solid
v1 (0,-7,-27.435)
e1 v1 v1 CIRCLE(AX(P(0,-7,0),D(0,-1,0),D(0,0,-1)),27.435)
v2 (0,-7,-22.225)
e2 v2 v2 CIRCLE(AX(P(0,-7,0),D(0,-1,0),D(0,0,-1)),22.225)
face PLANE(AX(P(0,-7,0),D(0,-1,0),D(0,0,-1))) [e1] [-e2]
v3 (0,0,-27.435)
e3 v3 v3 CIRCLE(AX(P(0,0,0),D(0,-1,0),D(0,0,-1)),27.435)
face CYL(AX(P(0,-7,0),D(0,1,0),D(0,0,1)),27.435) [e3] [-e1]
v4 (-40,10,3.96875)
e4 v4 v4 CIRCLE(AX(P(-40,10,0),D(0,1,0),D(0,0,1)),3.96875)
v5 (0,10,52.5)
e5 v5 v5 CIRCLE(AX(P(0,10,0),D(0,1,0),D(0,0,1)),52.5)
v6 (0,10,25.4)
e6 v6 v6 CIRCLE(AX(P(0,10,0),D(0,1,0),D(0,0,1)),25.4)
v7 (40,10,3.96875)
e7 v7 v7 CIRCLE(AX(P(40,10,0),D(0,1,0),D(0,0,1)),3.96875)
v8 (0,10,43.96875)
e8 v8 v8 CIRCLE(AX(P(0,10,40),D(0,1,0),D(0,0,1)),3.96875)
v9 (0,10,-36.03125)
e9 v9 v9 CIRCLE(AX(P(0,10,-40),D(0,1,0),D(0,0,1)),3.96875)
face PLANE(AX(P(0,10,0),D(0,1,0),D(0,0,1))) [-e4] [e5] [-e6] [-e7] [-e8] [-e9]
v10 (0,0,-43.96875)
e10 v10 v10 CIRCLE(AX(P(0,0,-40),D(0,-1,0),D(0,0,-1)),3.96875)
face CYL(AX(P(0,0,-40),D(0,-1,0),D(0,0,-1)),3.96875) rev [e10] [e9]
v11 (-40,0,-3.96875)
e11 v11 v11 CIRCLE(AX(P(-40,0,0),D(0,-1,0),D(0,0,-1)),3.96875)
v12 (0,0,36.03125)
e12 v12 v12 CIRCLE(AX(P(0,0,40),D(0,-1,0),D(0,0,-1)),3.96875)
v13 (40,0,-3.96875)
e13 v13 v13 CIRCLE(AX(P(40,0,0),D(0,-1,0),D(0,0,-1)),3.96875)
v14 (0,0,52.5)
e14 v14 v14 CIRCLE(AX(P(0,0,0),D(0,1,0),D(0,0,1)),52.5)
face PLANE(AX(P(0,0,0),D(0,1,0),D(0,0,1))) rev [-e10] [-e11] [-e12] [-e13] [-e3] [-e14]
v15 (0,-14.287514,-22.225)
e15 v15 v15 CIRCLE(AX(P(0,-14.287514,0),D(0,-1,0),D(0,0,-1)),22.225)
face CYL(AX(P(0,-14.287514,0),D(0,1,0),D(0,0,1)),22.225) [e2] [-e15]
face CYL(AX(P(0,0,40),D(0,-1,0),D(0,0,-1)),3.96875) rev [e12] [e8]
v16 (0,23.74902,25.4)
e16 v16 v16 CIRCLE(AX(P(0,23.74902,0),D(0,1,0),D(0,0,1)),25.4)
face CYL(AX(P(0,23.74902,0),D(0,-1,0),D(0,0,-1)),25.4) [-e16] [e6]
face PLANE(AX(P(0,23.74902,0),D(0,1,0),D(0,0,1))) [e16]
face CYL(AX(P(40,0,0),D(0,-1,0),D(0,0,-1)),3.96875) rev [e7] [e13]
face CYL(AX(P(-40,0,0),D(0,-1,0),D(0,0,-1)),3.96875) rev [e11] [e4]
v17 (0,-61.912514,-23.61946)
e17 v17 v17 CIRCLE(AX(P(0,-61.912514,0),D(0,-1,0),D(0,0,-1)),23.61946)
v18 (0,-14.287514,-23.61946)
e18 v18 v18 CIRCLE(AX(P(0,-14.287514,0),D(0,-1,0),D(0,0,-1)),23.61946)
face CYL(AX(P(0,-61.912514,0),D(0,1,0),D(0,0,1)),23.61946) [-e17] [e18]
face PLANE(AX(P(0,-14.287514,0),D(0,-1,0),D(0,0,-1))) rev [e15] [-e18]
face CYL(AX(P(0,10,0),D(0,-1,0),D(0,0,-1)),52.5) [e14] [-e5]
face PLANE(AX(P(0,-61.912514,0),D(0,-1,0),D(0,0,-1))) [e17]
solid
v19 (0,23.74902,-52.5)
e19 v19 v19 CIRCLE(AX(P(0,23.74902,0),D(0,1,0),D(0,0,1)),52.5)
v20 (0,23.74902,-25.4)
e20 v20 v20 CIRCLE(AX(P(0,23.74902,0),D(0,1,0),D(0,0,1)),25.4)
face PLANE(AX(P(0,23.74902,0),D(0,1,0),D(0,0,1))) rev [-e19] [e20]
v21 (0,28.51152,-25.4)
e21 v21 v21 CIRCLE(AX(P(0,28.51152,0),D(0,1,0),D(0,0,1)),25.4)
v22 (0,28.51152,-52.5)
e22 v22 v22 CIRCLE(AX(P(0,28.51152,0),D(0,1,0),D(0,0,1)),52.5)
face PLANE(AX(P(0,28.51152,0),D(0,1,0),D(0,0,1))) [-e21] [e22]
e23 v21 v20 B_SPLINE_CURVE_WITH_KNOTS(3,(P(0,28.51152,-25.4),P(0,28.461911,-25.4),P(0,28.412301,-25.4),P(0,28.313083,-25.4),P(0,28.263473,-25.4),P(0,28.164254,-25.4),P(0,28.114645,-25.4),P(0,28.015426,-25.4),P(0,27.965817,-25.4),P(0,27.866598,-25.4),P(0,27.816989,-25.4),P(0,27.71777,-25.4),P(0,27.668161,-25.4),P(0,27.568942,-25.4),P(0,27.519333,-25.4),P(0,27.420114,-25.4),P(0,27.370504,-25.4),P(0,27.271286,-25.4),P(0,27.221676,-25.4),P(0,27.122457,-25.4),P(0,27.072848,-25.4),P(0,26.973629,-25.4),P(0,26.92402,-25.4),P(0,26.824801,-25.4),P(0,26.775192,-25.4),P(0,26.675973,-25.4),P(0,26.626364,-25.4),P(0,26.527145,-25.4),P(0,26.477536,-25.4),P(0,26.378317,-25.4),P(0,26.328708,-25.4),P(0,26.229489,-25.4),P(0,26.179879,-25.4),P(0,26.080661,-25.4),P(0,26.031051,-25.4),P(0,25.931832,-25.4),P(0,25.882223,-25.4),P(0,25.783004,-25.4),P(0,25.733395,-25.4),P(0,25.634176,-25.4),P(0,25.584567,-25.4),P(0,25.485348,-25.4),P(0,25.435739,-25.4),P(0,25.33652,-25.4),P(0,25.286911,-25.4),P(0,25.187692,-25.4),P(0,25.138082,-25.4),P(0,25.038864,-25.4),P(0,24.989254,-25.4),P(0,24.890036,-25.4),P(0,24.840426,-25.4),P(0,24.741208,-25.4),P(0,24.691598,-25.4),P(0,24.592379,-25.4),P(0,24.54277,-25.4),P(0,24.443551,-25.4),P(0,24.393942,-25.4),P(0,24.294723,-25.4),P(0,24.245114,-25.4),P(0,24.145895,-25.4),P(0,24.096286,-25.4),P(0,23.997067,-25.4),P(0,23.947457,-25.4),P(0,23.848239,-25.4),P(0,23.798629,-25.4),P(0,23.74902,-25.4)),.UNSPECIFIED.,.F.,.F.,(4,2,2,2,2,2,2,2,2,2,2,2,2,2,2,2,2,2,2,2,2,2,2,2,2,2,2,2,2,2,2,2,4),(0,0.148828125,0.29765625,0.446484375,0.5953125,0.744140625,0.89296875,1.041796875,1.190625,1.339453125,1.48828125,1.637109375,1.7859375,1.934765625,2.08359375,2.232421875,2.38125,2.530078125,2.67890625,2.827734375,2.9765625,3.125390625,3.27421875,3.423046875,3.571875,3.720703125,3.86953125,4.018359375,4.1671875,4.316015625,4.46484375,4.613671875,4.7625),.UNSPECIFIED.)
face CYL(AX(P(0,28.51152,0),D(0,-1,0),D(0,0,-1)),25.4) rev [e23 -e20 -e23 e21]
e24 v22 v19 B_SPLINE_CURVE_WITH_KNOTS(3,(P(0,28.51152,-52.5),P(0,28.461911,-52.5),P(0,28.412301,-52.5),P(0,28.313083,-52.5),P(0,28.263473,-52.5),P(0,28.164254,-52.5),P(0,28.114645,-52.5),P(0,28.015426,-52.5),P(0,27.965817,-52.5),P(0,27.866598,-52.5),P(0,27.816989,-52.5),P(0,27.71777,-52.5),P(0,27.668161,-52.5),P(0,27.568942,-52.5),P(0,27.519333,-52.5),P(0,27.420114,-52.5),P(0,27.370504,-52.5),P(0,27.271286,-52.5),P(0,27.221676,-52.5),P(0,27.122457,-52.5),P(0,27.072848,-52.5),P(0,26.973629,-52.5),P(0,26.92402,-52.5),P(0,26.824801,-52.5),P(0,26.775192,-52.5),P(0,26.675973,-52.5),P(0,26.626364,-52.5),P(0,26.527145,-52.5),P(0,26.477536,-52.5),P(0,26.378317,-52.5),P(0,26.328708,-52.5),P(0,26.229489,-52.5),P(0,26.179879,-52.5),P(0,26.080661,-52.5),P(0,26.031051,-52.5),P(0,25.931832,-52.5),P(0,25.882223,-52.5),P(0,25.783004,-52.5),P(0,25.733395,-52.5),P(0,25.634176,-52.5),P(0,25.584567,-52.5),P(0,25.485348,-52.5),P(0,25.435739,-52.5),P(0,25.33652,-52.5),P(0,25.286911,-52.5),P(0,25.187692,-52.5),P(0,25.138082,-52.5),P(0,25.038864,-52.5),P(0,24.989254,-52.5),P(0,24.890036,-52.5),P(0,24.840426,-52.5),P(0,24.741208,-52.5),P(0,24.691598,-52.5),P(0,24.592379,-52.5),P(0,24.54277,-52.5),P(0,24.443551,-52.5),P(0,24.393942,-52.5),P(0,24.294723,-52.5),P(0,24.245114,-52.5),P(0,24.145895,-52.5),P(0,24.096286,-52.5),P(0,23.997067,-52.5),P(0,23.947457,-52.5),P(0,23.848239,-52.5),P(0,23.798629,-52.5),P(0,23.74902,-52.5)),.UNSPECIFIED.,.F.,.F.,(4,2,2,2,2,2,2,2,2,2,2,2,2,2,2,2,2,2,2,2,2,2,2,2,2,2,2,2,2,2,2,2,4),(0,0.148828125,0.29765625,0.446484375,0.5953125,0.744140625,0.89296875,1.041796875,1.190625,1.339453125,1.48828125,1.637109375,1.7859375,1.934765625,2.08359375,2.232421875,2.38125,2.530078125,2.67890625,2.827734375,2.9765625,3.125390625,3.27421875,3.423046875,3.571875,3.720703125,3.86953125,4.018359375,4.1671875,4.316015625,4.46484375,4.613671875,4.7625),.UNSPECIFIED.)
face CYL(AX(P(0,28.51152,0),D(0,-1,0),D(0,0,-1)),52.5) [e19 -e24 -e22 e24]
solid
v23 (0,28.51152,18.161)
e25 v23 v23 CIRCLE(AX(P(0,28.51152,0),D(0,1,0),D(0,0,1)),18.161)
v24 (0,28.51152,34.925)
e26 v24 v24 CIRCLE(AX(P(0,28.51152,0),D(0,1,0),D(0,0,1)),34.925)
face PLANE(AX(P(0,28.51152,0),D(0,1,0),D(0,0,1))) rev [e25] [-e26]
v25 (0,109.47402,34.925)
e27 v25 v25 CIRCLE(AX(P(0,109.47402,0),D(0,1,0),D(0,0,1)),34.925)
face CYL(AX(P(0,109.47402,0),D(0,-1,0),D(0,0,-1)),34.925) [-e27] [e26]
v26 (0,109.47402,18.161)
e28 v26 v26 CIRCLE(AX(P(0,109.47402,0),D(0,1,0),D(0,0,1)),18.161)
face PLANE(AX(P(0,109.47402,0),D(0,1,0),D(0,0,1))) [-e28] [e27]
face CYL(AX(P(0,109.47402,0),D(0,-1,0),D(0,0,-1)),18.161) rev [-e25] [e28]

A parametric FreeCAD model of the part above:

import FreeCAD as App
import Part
import Sketcher
Q = App.Units.Quantity


def add_polygon(sketch, points):
    """Adds a closed chain of lines whose ends are joined by coincident constraints."""
    first, n = sketch.GeometryCount, len(points)
    for a, b in zip(points, points[1:] + points[:1]):
        sketch.addGeometry(Part.LineSegment(App.Vector(*a, 0), App.Vector(*b, 0)), False)
    for i in range(n):
        sketch.addConstraint(Sketcher.Constraint("Coincident", first + i, 2, first + (i + 1) % n, 1))

doc = App.newDocument("Part")
body = doc.addObject("PartDesign::Body", "Body")

sketch1 = body.newObject("Sketcher::SketchObject", "Sketch")
sketch1.AttachmentSupport = (doc.getObject("XZ_Plane"), [""])
sketch1.MapMode = "FlatFace"
sketch1.addGeometry(Part.Circle(App.Vector(0, 0, 0), App.Vector(0, 0, 1), 52.5), False)
sketch1.addConstraint([
    Sketcher.Constraint("Coincident", 0, 3, -1, 1),
    Sketcher.Constraint("Diameter", 0, Q("105 mm")),
])
pad1 = body.newObject("PartDesign::Pad", "Pad")
pad1.Profile = sketch1
pad1.Length = 10
pad1.Reversed = True

sketch2 = body.newObject("Sketcher::SketchObject", "Sketch001")
sketch2.AttachmentSupport = (doc.getObject("XZ_Plane"), [""])
sketch2.MapMode = "FlatFace"
sketch2.addGeometry(Part.Circle(App.Vector(0, 0, 0), App.Vector(0, 0, 1), 27.435), False)
sketch2.addConstraint([
    Sketcher.Constraint("Coincident", 0, 3, -1, 1),
    Sketcher.Constraint("Diameter", 0, Q("54.87 mm")),
])
pad2 = body.newObject("PartDesign::Pad", "Pad001")
pad2.Profile = sketch2
pad2.Length = 7

sketch3 = body.newObject("Sketcher::SketchObject", "Sketch002")
sketch3.AttachmentSupport = (doc.getObject("XZ_Plane"), [""])
sketch3.MapMode = "FlatFace"
sketch3.AttachmentOffset = App.Placement(App.Vector(0, 0, 7), App.Rotation())
sketch3.addGeometry(Part.Circle(App.Vector(0, 0, 0), App.Vector(0, 0, 1), 22.225), False)
sketch3.addConstraint([
    Sketcher.Constraint("Coincident", 0, 3, -1, 1),
    Sketcher.Constraint("Diameter", 0, Q("1.75 in")),
])
pad3 = body.newObject("PartDesign::Pad", "Pad002")
pad3.Profile = sketch3
pad3.Length = 7.287514

sketch4 = body.newObject("Sketcher::SketchObject", "Sketch003")
sketch4.AttachmentSupport = (doc.getObject("XZ_Plane"), [""])
sketch4.MapMode = "FlatFace"
sketch4.AttachmentOffset = App.Placement(App.Vector(0, 0, -10), App.Rotation())
sketch4.addGeometry(Part.Circle(App.Vector(0, 0, 0), App.Vector(0, 0, 1), 25.4), False)
sketch4.addConstraint([
    Sketcher.Constraint("Coincident", 0, 3, -1, 1),
    Sketcher.Constraint("Diameter", 0, Q("2 in")),
])
pad4 = body.newObject("PartDesign::Pad", "Pad003")
pad4.Profile = sketch4
pad4.Length = Q("0.5413 in")
pad4.Reversed = True

sketch5 = body.newObject("Sketcher::SketchObject", "Sketch004")
sketch5.AttachmentSupport = (doc.getObject("YZ_Plane"), [""])
sketch5.MapMode = "FlatFace"
add_polygon(sketch5, [(10, 40), (0, 40), (0, 36.03125), (10, 36.03125)])
sketch5.addGeometry(Part.LineSegment(App.Vector(0, 40, 0), App.Vector(10, 40, 0)), True)
sketch5.addConstraint([
    Sketcher.Constraint("Horizontal", 0),
    Sketcher.Constraint("Vertical", 1),
    Sketcher.Constraint("Horizontal", 2),
    Sketcher.Constraint("Vertical", 3),
    Sketcher.Constraint("Horizontal", 4),
    Sketcher.Constraint("Coincident", 4, 1, 0, 2),
    Sketcher.Constraint("PointOnObject", 0, 2, -2),
    Sketcher.Constraint("Vertical", 2, 2, 4, 2),
    Sketcher.Constraint("DistanceY", 1, 2, 1, 1, Q("0.15625 in")),
    Sketcher.Constraint("DistanceX", 0, 2, 0, 1, Q("10 mm")),
    Sketcher.Constraint("DistanceY", -1, 1, 0, 2, Q("40 mm")),
])
groove = body.newObject("PartDesign::Groove", "Groove")
groove.Profile = sketch5
groove.ReferenceAxis = (sketch5, ["Axis0"])
groove.Angle = 360
doc.recompute()

datumline = body.newObject("PartDesign::Line", "DatumLine")
datumline.Placement = App.Placement(App.Vector(0, 0, 0), App.Rotation(App.Vector(0, 0, 1), App.Vector(-0.707106781, 0, -0.707106781)))
linearpattern = body.newObject("PartDesign::LinearPattern", "LinearPattern")
linearpattern.Originals = [groove]
linearpattern.Direction = (datumline, [""])
linearpattern.Mode = "offset"
linearpattern.Offset = 56.568542
linearpattern.Occurrences = 2
body.Tip = linearpattern
doc.recompute()

linearpattern2 = body.newObject("PartDesign::LinearPattern", "LinearPattern001")
linearpattern2.Originals = [groove]
linearpattern2.Direction = (doc.getObject("Z_Axis"), [""])
linearpattern2.Mode = "offset"
linearpattern2.Offset = 80
linearpattern2.Occurrences = 2
linearpattern2.Reversed = True
body.Tip = linearpattern2
doc.recompute()

datumline2 = body.newObject("PartDesign::Line", "DatumLine001")
datumline2.Placement = App.Placement(App.Vector(0, 0, 0), App.Rotation(App.Vector(0, 0, 1), App.Vector(0.707106781, 0, -0.707106781)))
linearpattern3 = body.newObject("PartDesign::LinearPattern", "LinearPattern002")
linearpattern3.Originals = [groove]
linearpattern3.Direction = (datumline2, [""])
linearpattern3.Mode = "offset"
linearpattern3.Offset = 56.568542
linearpattern3.Occurrences = 2
body.Tip = linearpattern3

sketch6 = body.newObject("Sketcher::SketchObject", "Sketch005")
sketch6.AttachmentSupport = (doc.getObject("XZ_Plane"), [""])
sketch6.MapMode = "FlatFace"
sketch6.AttachmentOffset = App.Placement(App.Vector(0, 0, 14.287514), App.Rotation())
sketch6.addGeometry(Part.Circle(App.Vector(0, 0, 0), App.Vector(0, 0, 1), 23.61946), False)
sketch6.addConstraint([
    Sketcher.Constraint("Coincident", 0, 3, -1, 1),
    Sketcher.Constraint("Diameter", 0, Q("1.8598 in")),
])
pad5 = body.newObject("PartDesign::Pad", "Pad004")
pad5.Profile = sketch6
pad5.Length = Q("1.875 in")
body2 = doc.addObject("PartDesign::Body", "Body001")

sketch7 = body2.newObject("Sketcher::SketchObject", "Sketch006")
sketch7.AttachmentSupport = (doc.getObject("XZ_Plane001"), [""])
sketch7.MapMode = "FlatFace"
sketch7.AttachmentOffset = App.Placement(App.Vector(0, 0, -23.74902), App.Rotation())
sketch7.addGeometry([
    Part.Circle(App.Vector(0, 0, 0), App.Vector(0, 0, 1), 52.5),
    Part.Circle(App.Vector(0, 0, 0), App.Vector(0, 0, 1), 25.4),
], False)
sketch7.addConstraint([
    Sketcher.Constraint("Coincident", 0, 3, -1, 1),
    Sketcher.Constraint("Coincident", 1, 3, -1, 1),
    Sketcher.Constraint("Diameter", 1, Q("2 in")),
    Sketcher.Constraint("Diameter", 0, Q("105 mm")),
])
pad6 = body2.newObject("PartDesign::Pad", "Pad005")
pad6.Profile = sketch7
pad6.Length = Q("0.1875 in")
pad6.Reversed = True
body3 = doc.addObject("PartDesign::Body", "Body002")

sketch8 = body3.newObject("Sketcher::SketchObject", "Sketch007")
sketch8.AttachmentSupport = (doc.getObject("XZ_Plane002"), [""])
sketch8.MapMode = "FlatFace"
sketch8.AttachmentOffset = App.Placement(App.Vector(0, 0, -28.51152), App.Rotation())
sketch8.addGeometry([
    Part.Circle(App.Vector(0, 0, 0), App.Vector(0, 0, 1), 34.925),
    Part.Circle(App.Vector(0, 0, 0), App.Vector(0, 0, 1), 18.161),
], False)
sketch8.addConstraint([
    Sketcher.Constraint("Coincident", 0, 3, -1, 1),
    Sketcher.Constraint("Coincident", 1, 3, -1, 1),
    Sketcher.Constraint("Diameter", 0, Q("2.75 in")),
    Sketcher.Constraint("Diameter", 1, Q("1.43 in")),
])
pad7 = body3.newObject("PartDesign::Pad", "Pad006")
pad7.Profile = sketch8
pad7.Length = Q("3.1875 in")
pad7.Reversed = True

doc.recompute()
